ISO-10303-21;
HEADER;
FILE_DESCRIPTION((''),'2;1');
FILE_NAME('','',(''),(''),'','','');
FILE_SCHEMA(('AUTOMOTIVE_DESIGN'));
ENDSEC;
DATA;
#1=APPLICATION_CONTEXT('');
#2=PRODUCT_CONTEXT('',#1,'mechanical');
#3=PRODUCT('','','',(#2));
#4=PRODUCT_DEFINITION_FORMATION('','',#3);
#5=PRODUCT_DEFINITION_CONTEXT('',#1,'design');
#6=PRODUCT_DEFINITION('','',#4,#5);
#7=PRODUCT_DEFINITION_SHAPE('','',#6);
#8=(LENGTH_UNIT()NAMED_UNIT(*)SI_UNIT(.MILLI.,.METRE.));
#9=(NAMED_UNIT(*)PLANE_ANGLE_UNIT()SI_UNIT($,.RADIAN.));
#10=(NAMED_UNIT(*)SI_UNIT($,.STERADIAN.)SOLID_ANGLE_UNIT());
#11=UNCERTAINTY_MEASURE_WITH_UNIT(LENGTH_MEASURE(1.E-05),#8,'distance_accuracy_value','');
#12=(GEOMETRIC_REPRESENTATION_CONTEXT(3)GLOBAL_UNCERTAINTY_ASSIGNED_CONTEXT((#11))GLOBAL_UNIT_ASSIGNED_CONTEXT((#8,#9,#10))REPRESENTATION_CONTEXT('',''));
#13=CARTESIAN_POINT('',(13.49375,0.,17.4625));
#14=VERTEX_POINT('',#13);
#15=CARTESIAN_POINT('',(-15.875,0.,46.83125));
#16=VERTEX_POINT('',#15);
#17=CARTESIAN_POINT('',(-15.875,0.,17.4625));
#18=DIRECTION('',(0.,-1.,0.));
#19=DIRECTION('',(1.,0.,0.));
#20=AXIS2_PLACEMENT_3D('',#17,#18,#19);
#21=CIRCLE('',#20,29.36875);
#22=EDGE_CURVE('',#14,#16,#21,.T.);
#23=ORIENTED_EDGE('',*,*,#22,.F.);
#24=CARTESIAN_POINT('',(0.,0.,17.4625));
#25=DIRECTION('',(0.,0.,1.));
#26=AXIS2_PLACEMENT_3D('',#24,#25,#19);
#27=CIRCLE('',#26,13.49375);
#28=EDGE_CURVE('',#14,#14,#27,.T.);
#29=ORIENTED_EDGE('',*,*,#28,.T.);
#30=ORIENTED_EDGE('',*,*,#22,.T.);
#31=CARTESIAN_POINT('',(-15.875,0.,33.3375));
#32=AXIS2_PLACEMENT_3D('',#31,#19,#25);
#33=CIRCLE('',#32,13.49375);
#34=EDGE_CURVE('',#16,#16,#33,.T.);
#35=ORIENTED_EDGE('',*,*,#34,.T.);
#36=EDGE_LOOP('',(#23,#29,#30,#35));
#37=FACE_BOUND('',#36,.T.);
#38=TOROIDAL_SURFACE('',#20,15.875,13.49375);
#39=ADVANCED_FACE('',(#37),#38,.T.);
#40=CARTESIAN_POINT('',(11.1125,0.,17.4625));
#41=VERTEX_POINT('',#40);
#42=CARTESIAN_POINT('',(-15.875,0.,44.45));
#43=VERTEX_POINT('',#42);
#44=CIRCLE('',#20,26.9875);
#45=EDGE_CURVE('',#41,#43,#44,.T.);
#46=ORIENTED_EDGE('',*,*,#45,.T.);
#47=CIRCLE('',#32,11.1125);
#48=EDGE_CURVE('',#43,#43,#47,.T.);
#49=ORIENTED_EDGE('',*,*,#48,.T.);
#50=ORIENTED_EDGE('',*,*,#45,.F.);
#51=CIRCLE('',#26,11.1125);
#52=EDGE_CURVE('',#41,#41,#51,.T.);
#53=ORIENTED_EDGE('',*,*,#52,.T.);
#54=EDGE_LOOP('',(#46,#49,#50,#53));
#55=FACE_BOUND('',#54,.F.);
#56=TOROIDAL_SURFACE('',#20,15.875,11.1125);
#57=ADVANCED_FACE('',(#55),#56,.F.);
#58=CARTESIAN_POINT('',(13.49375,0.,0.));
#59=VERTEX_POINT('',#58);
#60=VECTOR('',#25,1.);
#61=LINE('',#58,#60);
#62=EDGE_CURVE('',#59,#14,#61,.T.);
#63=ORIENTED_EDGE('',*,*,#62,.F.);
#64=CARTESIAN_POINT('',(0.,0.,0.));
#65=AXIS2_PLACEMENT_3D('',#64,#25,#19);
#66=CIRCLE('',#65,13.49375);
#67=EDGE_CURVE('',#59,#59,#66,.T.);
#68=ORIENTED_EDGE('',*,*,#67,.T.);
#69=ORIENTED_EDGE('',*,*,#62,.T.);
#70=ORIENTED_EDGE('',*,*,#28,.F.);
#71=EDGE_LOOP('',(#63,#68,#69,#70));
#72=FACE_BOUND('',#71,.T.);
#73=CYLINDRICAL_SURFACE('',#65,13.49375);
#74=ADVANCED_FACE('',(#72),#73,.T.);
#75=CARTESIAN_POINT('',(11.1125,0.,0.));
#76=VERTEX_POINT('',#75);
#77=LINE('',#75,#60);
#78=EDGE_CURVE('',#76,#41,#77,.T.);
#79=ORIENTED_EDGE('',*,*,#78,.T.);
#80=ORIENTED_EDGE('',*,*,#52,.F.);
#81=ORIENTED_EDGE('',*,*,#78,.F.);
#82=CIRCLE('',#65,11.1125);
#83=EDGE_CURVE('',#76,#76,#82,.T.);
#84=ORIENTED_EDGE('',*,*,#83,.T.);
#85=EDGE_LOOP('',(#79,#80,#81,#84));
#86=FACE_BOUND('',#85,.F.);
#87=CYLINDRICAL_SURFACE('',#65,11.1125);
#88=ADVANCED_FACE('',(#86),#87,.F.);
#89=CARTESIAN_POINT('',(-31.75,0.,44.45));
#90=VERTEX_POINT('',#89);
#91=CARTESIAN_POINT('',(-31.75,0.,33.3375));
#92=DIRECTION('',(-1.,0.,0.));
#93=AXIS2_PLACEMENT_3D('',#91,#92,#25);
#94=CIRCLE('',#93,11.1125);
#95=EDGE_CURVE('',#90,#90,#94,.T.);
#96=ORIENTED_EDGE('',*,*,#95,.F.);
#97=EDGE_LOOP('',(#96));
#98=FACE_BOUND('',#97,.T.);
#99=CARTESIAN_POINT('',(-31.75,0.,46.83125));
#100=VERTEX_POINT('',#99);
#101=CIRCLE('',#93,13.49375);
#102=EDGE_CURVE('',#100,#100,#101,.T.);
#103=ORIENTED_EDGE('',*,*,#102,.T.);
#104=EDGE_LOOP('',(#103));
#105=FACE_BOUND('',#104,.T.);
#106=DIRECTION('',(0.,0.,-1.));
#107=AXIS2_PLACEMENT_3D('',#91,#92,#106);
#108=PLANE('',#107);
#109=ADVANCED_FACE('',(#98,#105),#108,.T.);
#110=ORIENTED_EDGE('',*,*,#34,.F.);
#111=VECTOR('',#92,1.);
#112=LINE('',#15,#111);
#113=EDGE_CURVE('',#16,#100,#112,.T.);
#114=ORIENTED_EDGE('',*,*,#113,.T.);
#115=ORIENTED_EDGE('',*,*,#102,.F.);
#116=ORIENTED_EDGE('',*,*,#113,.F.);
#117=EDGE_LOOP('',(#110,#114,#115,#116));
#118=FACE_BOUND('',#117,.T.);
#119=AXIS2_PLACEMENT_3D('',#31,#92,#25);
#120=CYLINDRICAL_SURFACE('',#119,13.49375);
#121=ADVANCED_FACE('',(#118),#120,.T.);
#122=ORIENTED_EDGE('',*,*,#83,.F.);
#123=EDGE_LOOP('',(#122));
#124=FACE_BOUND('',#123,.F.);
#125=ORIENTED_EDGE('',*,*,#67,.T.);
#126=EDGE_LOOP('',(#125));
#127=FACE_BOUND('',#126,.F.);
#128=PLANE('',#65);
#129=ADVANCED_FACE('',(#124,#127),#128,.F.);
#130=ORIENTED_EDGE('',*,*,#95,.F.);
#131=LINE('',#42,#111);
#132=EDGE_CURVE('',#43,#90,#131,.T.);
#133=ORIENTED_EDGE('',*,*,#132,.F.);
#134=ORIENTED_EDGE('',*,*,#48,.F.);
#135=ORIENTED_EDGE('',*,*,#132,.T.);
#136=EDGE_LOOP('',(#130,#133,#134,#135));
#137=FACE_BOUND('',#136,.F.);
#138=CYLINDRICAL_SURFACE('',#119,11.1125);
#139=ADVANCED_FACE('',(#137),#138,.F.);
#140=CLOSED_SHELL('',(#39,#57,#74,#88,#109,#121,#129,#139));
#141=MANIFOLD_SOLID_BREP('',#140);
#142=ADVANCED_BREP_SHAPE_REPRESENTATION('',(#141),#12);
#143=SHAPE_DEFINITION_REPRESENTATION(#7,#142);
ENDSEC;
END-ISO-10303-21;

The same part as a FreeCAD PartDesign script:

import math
import FreeCAD as App
import Part
import Sketcher
Q = App.Units.Quantity

doc = App.newDocument("Part")
body = doc.addObject("PartDesign::Body", "Body")

# Sketch on XY plane
sketch1 = body.newObject("Sketcher::SketchObject", "Sketch")
sketch1.AttachmentSupport = (doc.getObject("XY_Plane"), [""])
sketch1.MapMode = "FlatFace"
sketch1.addGeometry(Part.Circle(App.Vector(0, 0, 0), App.Vector(0, 0, 1), 13), False)
sketch1.addConstraint([
    Sketcher.Constraint("Coincident", 0, 3, -1, 1),
    Sketcher.Constraint("Diameter", 0, Q("1.0625 in")),
])

# Sketch on XZ plane
sketch2 = body.newObject("Sketcher::SketchObject", "Sketch001")
sketch2.AttachmentSupport = (doc.getObject("XZ_Plane"), [""])
sketch2.MapMode = "FlatFace"
sketch2.addGeometry([
    Part.LineSegment(App.Vector(0, 0, 0), App.Vector(0, 17, 0)),
    Part.ArcOfCircle(Part.Circle(App.Vector(-16, 17, 0), App.Vector(0, 0, 1), 16), math.radians(0), math.radians(90)),
    Part.LineSegment(App.Vector(-16, 33, 0), App.Vector(-32, 33, 0)),
], False)
sketch2.addConstraint([
    Sketcher.Constraint("Tangent", 0, 2, 1, 1),
    Sketcher.Constraint("Tangent", 1, 2, 2, 1),
    Sketcher.Constraint("Vertical", 0),
    Sketcher.Constraint("Horizontal", 2),
    Sketcher.Constraint("Coincident", 0, 1, -1, 1),
    Sketcher.Constraint("Radius", 1, Q("0.625 in")),
    Sketcher.Constraint("DistanceX", 2, 2, 2, 1, Q("0.625 in")),
    Sketcher.Constraint("DistanceY", 0, 1, 0, 2, Q("0.6875 in")),
])
doc.recompute()

additivepipe = body.newObject("PartDesign::AdditivePipe", "AdditivePipe")
additivepipe.Profile = sketch1
additivepipe.Spine = (sketch2, ["Edge1", "Edge2", "Edge3"])

# Sketch on XY plane
sketch3 = body.newObject("Sketcher::SketchObject", "Sketch002")
sketch3.AttachmentSupport = (doc.getObject("XY_Plane"), [""])
sketch3.MapMode = "FlatFace"
sketch3.addGeometry(Part.Circle(App.Vector(0, 0, 0), App.Vector(0, 0, 1), 11), False)
sketch3.addConstraint([
    Sketcher.Constraint("Coincident", 0, 3, -1, 1),
    Sketcher.Constraint("Diameter", 0, Q("0.875 in")),
])

# Sketch on XZ plane
sketch4 = body.newObject("Sketcher::SketchObject", "Sketch003")
sketch4.AttachmentSupport = (doc.getObject("XZ_Plane"), [""])
sketch4.MapMode = "FlatFace"
sketch4.addGeometry([
    Part.LineSegment(App.Vector(0, 0, 0), App.Vector(0, 17, 0)),
    Part.ArcOfCircle(Part.Circle(App.Vector(-16, 17, 0), App.Vector(0, 0, 1), 16), math.radians(0), math.radians(90)),
    Part.LineSegment(App.Vector(-16, 33, 0), App.Vector(-32, 33, 0)),
], False)
sketch4.addConstraint([
    Sketcher.Constraint("Tangent", 0, 2, 1, 1),
    Sketcher.Constraint("Tangent", 1, 2, 2, 1),
    Sketcher.Constraint("Vertical", 0),
    Sketcher.Constraint("Horizontal", 2),
    Sketcher.Constraint("Coincident", 0, 1, -1, 1),
    Sketcher.Constraint("Radius", 1, Q("0.625 in")),
    Sketcher.Constraint("DistanceX", 2, 2, 2, 1, Q("0.625 in")),
    Sketcher.Constraint("DistanceY", 0, 1, 0, 2, Q("0.6875 in")),
])
doc.recompute()

subtractivepipe = body.newObject("PartDesign::SubtractivePipe", "SubtractivePipe")
subtractivepipe.Profile = sketch3
subtractivepipe.Spine = (sketch4, ["Edge1", "Edge2", "Edge3"])

doc.recompute()
